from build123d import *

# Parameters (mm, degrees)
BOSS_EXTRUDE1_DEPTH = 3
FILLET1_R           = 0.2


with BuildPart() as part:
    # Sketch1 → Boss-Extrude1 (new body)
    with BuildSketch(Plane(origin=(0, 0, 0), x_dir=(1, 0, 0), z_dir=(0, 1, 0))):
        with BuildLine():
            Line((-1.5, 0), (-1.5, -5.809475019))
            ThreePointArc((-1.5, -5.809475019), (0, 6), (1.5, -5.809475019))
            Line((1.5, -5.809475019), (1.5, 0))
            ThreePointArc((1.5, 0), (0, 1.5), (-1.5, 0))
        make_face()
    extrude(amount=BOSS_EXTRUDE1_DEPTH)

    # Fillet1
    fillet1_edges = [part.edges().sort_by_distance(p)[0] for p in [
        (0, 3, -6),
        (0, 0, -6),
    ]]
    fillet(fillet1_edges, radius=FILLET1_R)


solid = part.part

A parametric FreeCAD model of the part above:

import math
import FreeCAD as App
import Part
import Sketcher
from FreeCAD import Vector
Q = App.Units.Quantity


def edges_at(feature, points):
    """Names of the edges that pass closest to the given points."""
    edges = feature.Shape.Edges
    near = lambda p: min(range(len(edges)), key=lambda i: edges[i].distToShape(Part.Vertex(*p))[0])
    return sorted({f"Edge{near(p) + 1}" for p in points})

doc = App.newDocument("Part")
body = doc.addObject("PartDesign::Body", "Body")

# Sketch on XZ plane
sketch1 = body.newObject("Sketcher::SketchObject", "Sketch")
sketch1.AttachmentSupport = (doc.getObject("XZ_Plane"), [""])
sketch1.MapMode = "FlatFace"
sketch1.addGeometry(Part.LineSegment(Vector(-1.5, 5.8, 0), Vector(-1.5, 0, 0)), False)
sketch1.addGeometry(Part.ArcOfCircle(Part.Circle(Vector(0, 0, 0), Vector(0, 0, 1), 1.5), math.radians(180), math.radians(360)), False)
sketch1.addGeometry(Part.LineSegment(Vector(1.5, 0, 0), Vector(1.5, 5.8, 0)), False)
sketch1.addGeometry(Part.ArcOfCircle(Part.Circle(Vector(0, 0, 0), Vector(0, 0, 1), 6), math.radians(104), math.radians(436)), False)
sketch1.addConstraint(Sketcher.Constraint("Tangent", 0, 2, 1, 1))
sketch1.addConstraint(Sketcher.Constraint("Tangent", 1, 2, 2, 1))
sketch1.addConstraint(Sketcher.Constraint("Coincident", 2, 2, 3, 2))
sketch1.addConstraint(Sketcher.Constraint("Coincident", 3, 1, 0, 1))
sketch1.addConstraint(Sketcher.Constraint("Vertical", 0))
sketch1.addConstraint(Sketcher.Constraint("Vertical", 2))
sketch1.addConstraint(Sketcher.Constraint("Coincident", 1, 3, -1, 1))
sketch1.addConstraint(Sketcher.Constraint("Coincident", 3, 3, -1, 1))
sketch1.addConstraint(Sketcher.Constraint("Radius", 3, Q("6 mm")))
sketch1.addConstraint(Sketcher.Constraint("Radius", 1, Q("1.5 mm")))
pad1 = body.newObject("PartDesign::Pad", "Pad")
pad1.Profile = sketch1
pad1.Length = 3
pad1.Reversed = True
doc.recompute()

fillet = body.newObject("PartDesign::Fillet", "Fillet")
fillet.Base = (pad1, edges_at(pad1, [(0, 3, -6), (0, 0, -6)]))
fillet.Radius = 0.2

doc.recompute()
